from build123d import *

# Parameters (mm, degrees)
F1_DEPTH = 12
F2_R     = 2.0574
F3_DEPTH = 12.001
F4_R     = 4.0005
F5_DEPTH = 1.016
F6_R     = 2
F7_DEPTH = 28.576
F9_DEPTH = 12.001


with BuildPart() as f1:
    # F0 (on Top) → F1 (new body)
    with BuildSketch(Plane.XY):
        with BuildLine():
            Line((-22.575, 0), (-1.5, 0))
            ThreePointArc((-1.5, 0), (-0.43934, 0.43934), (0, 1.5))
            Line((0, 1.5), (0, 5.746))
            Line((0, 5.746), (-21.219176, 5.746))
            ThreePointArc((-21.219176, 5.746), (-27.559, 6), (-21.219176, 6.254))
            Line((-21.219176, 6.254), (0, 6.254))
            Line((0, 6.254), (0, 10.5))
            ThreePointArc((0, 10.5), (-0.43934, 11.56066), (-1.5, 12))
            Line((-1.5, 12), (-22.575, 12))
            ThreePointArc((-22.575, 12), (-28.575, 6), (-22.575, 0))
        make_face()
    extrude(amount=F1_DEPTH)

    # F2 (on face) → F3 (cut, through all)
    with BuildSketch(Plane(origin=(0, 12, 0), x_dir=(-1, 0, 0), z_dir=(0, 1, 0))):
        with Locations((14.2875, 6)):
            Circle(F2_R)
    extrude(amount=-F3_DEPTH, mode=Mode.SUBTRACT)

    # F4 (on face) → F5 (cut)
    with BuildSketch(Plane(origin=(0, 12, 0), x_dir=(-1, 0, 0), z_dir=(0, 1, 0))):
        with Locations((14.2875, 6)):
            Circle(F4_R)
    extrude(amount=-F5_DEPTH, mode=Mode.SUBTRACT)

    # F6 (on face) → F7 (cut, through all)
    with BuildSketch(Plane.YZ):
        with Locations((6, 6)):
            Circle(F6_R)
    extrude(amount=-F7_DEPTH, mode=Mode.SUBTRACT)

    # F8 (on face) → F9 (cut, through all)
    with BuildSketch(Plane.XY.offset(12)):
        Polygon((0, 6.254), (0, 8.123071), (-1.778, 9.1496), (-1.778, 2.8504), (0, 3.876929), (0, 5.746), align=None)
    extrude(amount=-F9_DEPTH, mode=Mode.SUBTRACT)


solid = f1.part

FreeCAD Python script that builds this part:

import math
import FreeCAD as App
import Part
import Sketcher

V = App.Vector
Q = App.Units.Quantity


def add_polygon(sketch, points):
    """Adds a closed chain of lines whose ends are joined by coincident constraints."""
    first, n = sketch.GeometryCount, len(points)
    for a, b in zip(points, points[1:] + points[:1]):
        sketch.addGeometry(Part.LineSegment(App.Vector(*a, 0), App.Vector(*b, 0)), False)
    for i in range(n):
        sketch.addConstraint(Sketcher.Constraint("Coincident", first + i, 2, first + (i + 1) % n, 1))

doc = App.newDocument("Part")
body = doc.addObject("PartDesign::Body", "Body")

# Sketch on XY plane
sketch1 = doc.addObject("Sketcher::SketchObject", "Sketch")
body.addObject(sketch1)
sketch1.AttachmentSupport = (doc.XY_Plane, [""])
sketch1.MapMode = "FlatFace"
sketch1.addGeometry([
    Part.LineSegment(V(-22.6, 0, 0), V(-1.5, 0, 0)),  # 0
    Part.ArcOfCircle(Part.Circle(V(-1.5, 1.5, 0), V(0, 0, 1), 1.5), math.radians(-90), math.radians(0)),  # 1
    Part.LineSegment(V(0, 1.5, 0), V(0, 5.7, 0)),  # 2
    Part.LineSegment(V(0, 5.7, 0), V(-21.2, 5.7, 0)),  # 3
    Part.ArcOfCircle(Part.Circle(V(-24.4, 6, 0), V(0, 0, 1), 3.2), math.radians(5), math.radians(355)),  # 4
    Part.LineSegment(V(-21.2, 6.3, 0), V(0, 6.3, 0)),  # 5
    Part.LineSegment(V(0, 6.3, 0), V(0, 10.5, 0)),  # 6
    Part.ArcOfCircle(Part.Circle(V(-1.5, 10.5, 0), V(0, 0, 1), 1.5), math.radians(0), math.radians(90)),  # 7
    Part.LineSegment(V(-1.5, 12, 0), V(-22.6, 12, 0)),  # 8
    Part.ArcOfCircle(Part.Circle(V(-22.6, 6, 0), V(0, 0, 1), 6), math.radians(90), math.radians(270)),  # 9
], False)
sketch1.addConstraint([
    Sketcher.Constraint("Tangent", 0, 2, 1, 1),
    Sketcher.Constraint("Tangent", 1, 2, 2, 1),
    Sketcher.Constraint("Coincident", 2, 2, 3, 1),
    Sketcher.Constraint("Coincident", 3, 2, 4, 2),
    Sketcher.Constraint("Coincident", 4, 1, 5, 1),
    Sketcher.Constraint("Coincident", 5, 2, 6, 1),
    Sketcher.Constraint("Tangent", 6, 2, 7, 1),
    Sketcher.Constraint("Tangent", 7, 2, 8, 1),
    Sketcher.Constraint("Tangent", 8, 2, 9, 1),
    Sketcher.Constraint("Tangent", 9, 2, 0, 1),
    Sketcher.Constraint("Horizontal", 0),
    Sketcher.Constraint("Vertical", 2),
    Sketcher.Constraint("Horizontal", 3),
    Sketcher.Constraint("Horizontal", 5),
    Sketcher.Constraint("Vertical", 6),
    Sketcher.Constraint("Horizontal", 8),
    Sketcher.Constraint("Equal", 1, 7),
    Sketcher.Constraint("PointOnObject", 0, 2, -1),
    Sketcher.Constraint("PointOnObject", 1, 2, -2),
    Sketcher.Constraint("PointOnObject", 5, 2, -2),
    Sketcher.Constraint("Horizontal", 4, 3, 9, 3),
    Sketcher.Constraint("Vertical", 3, 2, 4, 1),
    Sketcher.Constraint("Radius", 4, Q("0.125 in")),
    Sketcher.Constraint("DistanceX", 4, 3, -1, 1, Q("0.96 in")),
    Sketcher.Constraint("Radius", 1, 1.500001),
    Sketcher.Constraint("Radius", 9, 6.0),
    Sketcher.Constraint("DistanceY", 2, 2, 9, 3, Q("0.01 in")),
    Sketcher.Constraint("DistanceX", 0, 1, 0, 2, 21.075),
])
pad1 = doc.addObject("PartDesign::Pad", "Pad")
body.addObject(pad1)
pad1.Profile = sketch1
pad1.Length = 12

# Sketch on XZ plane
sketch2 = doc.addObject("Sketcher::SketchObject", "Sketch001")
body.addObject(sketch2)
sketch2.AttachmentSupport = (doc.XZ_Plane, [""])
sketch2.MapMode = "FlatFace"
sketch2.AttachmentOffset = App.Placement(V(0, 0, -12), App.Rotation())
sketch2.addGeometry(Part.Circle(V(-14.3, 6, 0), V(0, 0, 1), 2.1), False)
sketch2.addConstraint([
    Sketcher.Constraint("Diameter", 0, Q("0.162 in")),
    Sketcher.Constraint("DistanceX", 0, 3, -1, 1, Q("0.5625 in")),
    Sketcher.Constraint("DistanceY", -1, 1, 0, 3, 6.0),
])
pocket1 = doc.addObject("PartDesign::Pocket", "Pocket")
body.addObject(pocket1)
pocket1.Profile = sketch2
pocket1.Type = "ThroughAll"
pocket1.Reversed = True

# Sketch on XZ plane
sketch3 = doc.addObject("Sketcher::SketchObject", "Sketch002")
body.addObject(sketch3)
sketch3.AttachmentSupport = (doc.XZ_Plane, [""])
sketch3.MapMode = "FlatFace"
sketch3.AttachmentOffset = App.Placement(V(0, 0, -12), App.Rotation())
sketch3.addGeometry(Part.Circle(V(-14.3, 6, 0), V(0, 0, 1), 4), False)
sketch3.addConstraint([
    Sketcher.Constraint("Diameter", 0, Q("0.315 in")),
    Sketcher.Constraint("DistanceX", 0, 3, -1, 1, Q("0.5625 in")),
    Sketcher.Constraint("DistanceY", -1, 1, 0, 3, 6.0),
])
pocket2 = doc.addObject("PartDesign::Pocket", "Pocket001")
body.addObject(pocket2)
pocket2.Profile = sketch3
pocket2.Length = Q("0.04 in")
pocket2.Reversed = True

# Sketch on YZ plane
sketch4 = doc.addObject("Sketcher::SketchObject", "Sketch003")
body.addObject(sketch4)
sketch4.AttachmentSupport = (doc.YZ_Plane, [""])
sketch4.MapMode = "FlatFace"
sketch4.addGeometry(Part.Circle(V(6, 6, 0), V(0, 0, 1), 2), False)
sketch4.addConstraint([
    Sketcher.Constraint("Diameter", 0, 4.0),
    Sketcher.Constraint("DistanceX", -1, 1, 0, 3, 6.0),
    Sketcher.Constraint("DistanceY", -1, 1, 0, 3, 6.0),
])
pocket3 = doc.addObject("PartDesign::Pocket", "Pocket002")
body.addObject(pocket3)
pocket3.Profile = sketch4
pocket3.Type = "ThroughAll"

# Sketch on XY plane
sketch5 = doc.addObject("Sketcher::SketchObject", "Sketch004")
body.addObject(sketch5)
sketch5.AttachmentSupport = (doc.XY_Plane, [""])
sketch5.MapMode = "FlatFace"
sketch5.AttachmentOffset = App.Placement(V(0, 0, 12), App.Rotation())
add_polygon(sketch5, [(0, 8.1), (-1.8, 9.1), (-1.8, 2.9), (0, 3.9)])  # lines 0-3
sketch5.addConstraint([
    Sketcher.Constraint("Vertical", 1),
    Sketcher.Constraint("Vertical", 3),
    Sketcher.Constraint("PointOnObject", 2, 2, -2),
    Sketcher.Constraint("Equal", 0, 2),
    Sketcher.Constraint("Angle", 0, Q("149.999995 deg")),
    Sketcher.Constraint("DistanceY", 1, 2, 1, 1, Q("0.248 in")),
    Sketcher.Constraint("DistanceX", 0, 2, -1, 1, Q("0.07 in")),
    Sketcher.Constraint("DistanceY", -1, 1, 0, 2, 9.1496),
])
pocket4 = doc.addObject("PartDesign::Pocket", "Pocket003")
body.addObject(pocket4)
pocket4.Profile = sketch5
pocket4.Type = "ThroughAll"

doc.recompute()
